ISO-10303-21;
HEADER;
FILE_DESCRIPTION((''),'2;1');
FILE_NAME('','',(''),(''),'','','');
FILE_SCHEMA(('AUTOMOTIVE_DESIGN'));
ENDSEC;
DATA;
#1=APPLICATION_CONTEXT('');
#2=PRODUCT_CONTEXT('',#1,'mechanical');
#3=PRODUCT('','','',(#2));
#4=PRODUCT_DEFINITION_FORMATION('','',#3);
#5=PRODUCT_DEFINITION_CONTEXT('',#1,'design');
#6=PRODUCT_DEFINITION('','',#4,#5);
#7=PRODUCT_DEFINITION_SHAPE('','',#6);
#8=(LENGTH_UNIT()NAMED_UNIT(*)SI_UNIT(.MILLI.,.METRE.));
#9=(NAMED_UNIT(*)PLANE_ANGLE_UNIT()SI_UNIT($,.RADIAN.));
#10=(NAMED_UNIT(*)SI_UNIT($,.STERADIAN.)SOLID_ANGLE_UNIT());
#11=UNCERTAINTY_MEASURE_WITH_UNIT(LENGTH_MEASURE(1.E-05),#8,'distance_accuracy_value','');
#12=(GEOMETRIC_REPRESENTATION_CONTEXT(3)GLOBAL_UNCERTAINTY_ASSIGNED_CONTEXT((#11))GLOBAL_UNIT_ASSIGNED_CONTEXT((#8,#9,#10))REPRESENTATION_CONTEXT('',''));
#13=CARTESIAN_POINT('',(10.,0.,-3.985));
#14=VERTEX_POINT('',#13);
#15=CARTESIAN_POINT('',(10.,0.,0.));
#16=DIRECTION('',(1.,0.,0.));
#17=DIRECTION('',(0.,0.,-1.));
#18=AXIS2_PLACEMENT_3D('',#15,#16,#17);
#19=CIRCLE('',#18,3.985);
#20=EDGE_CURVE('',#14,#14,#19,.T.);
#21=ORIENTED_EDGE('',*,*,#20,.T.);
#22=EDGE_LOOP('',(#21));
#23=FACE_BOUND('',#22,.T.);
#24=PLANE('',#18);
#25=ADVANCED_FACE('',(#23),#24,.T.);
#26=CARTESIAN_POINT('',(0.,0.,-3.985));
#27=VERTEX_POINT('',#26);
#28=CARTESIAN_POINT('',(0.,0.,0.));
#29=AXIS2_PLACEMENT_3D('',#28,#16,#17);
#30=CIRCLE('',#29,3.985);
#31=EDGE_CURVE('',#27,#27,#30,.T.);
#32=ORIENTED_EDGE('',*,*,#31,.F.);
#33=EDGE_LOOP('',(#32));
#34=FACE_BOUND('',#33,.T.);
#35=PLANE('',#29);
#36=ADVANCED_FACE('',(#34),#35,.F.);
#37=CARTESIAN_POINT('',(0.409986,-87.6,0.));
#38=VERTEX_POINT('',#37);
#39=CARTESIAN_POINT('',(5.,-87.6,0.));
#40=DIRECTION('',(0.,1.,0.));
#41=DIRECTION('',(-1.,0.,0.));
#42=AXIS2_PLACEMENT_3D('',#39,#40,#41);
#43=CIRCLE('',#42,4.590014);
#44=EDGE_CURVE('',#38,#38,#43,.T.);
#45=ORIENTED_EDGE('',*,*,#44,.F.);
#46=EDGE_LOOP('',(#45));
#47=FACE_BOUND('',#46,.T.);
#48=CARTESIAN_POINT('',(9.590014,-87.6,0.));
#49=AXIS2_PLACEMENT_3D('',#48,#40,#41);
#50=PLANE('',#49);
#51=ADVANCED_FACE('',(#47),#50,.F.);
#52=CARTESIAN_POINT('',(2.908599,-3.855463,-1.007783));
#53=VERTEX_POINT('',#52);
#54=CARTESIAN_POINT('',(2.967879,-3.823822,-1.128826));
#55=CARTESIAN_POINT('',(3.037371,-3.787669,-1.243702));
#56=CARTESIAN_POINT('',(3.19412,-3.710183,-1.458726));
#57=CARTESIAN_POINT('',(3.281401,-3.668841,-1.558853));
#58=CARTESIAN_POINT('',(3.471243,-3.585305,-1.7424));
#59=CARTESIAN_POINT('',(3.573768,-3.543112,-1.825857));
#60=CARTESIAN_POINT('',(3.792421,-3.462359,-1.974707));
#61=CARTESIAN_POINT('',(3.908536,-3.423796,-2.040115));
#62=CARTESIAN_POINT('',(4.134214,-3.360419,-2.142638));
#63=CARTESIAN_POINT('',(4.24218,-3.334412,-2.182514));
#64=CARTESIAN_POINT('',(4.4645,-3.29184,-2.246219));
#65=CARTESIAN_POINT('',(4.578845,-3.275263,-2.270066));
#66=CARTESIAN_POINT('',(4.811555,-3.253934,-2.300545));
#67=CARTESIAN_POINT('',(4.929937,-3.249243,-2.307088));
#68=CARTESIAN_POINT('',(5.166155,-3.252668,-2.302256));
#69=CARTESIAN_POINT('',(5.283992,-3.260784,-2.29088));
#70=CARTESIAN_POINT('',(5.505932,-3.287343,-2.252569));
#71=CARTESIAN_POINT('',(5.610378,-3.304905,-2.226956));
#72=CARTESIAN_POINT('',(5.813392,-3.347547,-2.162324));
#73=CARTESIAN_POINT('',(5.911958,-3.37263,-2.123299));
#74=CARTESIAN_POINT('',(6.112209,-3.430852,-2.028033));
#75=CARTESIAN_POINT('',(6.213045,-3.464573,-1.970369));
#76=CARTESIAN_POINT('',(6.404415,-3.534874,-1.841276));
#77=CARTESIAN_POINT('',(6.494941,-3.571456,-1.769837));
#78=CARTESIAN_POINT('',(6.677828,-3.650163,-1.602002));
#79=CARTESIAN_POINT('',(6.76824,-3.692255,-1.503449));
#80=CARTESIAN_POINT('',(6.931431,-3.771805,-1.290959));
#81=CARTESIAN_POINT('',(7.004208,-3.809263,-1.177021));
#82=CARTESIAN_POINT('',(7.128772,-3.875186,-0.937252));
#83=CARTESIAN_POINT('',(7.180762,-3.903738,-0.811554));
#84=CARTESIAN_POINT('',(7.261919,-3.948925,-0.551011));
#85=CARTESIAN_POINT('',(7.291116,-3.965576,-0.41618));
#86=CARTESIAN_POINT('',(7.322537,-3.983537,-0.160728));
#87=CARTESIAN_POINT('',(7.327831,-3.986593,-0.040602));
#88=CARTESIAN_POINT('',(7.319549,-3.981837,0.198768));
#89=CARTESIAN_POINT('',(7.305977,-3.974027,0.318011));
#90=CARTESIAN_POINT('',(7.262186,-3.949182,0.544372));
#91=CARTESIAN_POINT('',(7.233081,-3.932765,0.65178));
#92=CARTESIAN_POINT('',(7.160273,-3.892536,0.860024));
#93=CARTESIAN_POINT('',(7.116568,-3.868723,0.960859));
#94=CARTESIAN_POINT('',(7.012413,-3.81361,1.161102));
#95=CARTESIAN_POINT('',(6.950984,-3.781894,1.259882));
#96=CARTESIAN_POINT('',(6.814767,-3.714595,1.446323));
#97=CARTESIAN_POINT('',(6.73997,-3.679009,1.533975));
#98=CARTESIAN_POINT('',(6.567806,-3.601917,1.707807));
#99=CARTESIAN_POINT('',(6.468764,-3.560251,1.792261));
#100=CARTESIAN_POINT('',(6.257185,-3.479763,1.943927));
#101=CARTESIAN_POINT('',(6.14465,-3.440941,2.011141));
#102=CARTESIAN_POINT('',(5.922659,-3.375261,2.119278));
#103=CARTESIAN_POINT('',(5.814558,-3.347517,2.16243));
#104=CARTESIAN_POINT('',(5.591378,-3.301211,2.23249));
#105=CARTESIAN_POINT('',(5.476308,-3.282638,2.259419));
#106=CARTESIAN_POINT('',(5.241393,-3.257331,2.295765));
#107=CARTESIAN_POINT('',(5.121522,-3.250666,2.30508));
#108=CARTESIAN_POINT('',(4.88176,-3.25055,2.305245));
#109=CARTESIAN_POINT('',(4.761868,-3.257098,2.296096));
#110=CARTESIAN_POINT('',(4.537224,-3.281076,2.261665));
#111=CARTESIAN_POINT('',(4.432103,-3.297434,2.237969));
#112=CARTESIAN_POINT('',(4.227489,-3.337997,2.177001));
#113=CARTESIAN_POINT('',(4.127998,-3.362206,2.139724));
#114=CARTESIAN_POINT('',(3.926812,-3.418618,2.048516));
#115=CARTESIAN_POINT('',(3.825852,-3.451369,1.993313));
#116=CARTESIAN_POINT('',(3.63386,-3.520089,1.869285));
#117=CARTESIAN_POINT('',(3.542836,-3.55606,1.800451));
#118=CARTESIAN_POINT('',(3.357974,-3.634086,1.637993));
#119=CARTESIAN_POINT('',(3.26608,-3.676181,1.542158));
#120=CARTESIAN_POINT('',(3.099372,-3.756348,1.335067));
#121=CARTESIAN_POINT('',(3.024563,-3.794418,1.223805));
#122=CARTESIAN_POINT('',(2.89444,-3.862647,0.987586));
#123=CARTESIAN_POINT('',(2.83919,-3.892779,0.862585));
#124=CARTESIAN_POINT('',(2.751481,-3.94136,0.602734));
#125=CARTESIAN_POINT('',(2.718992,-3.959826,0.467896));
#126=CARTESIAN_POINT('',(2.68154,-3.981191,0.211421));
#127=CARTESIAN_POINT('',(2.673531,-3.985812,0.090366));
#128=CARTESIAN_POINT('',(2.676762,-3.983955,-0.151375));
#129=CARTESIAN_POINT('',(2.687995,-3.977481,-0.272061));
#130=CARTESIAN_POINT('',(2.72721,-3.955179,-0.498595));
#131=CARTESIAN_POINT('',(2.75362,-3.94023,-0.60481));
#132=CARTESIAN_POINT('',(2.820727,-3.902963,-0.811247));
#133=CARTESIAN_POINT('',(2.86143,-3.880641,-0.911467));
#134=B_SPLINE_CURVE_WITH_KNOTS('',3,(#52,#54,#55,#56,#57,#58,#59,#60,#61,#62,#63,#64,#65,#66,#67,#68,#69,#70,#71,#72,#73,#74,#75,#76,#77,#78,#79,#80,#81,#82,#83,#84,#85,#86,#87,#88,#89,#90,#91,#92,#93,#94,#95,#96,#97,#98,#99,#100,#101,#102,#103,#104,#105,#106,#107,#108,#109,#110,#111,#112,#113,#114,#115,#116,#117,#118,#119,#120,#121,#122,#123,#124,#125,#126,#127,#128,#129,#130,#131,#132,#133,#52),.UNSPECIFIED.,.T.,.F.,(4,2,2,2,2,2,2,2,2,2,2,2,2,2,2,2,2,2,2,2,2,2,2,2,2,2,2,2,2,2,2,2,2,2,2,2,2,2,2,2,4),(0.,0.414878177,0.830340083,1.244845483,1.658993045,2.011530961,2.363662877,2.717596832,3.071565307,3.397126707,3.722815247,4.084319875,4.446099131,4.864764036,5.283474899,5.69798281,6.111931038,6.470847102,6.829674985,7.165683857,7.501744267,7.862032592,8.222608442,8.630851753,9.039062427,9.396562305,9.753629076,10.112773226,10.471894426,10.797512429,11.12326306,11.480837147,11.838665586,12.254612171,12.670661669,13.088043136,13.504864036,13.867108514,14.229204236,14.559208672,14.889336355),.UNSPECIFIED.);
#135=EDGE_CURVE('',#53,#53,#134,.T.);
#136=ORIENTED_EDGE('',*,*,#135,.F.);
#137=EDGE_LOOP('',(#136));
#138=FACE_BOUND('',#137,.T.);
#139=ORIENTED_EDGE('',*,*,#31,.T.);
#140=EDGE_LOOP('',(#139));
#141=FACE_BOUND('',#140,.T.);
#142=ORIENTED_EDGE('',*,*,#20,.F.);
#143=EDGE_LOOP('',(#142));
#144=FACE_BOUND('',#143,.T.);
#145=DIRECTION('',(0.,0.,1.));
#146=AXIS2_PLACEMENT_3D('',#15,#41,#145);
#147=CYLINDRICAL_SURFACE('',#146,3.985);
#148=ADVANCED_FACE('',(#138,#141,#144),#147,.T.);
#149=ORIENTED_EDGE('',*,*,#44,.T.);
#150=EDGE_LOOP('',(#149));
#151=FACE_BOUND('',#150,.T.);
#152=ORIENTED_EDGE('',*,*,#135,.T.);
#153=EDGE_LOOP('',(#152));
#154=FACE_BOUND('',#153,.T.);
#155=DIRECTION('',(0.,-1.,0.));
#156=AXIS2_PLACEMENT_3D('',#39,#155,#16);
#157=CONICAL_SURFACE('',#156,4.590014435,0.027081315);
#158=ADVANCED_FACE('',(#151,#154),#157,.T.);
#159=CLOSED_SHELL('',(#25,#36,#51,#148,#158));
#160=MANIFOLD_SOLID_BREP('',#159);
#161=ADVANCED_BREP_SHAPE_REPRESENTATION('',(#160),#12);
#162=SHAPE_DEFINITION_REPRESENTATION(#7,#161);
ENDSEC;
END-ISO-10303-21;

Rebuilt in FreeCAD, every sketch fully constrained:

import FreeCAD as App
import Part
import Sketcher

V = App.Vector
Q = App.Units.Quantity

doc = App.newDocument("Part")
body = doc.addObject("PartDesign::Body", "Body")

# Sketch on YZ plane
sketch1 = body.newObject("Sketcher::SketchObject", "Sketch")
sketch1.AttachmentSupport = (doc.getObject("YZ_Plane"), [""])
sketch1.MapMode = "FlatFace"
sketch1.addGeometry(Part.Circle(V(0, 0, 0), V(0, 0, 1), 4), False)
sketch1.addConstraint([
    Sketcher.Constraint("Coincident", 0, 3, -1, 1),
    Sketcher.Constraint("Diameter", 0, Q("7.97 mm")),
])
pad1 = body.newObject("PartDesign::Pad", "Pad")
pad1.Profile = sketch1
pad1.Length = 10

# Sketch on XY plane
sketch2 = body.newObject("Sketcher::SketchObject", "Sketch001")
sketch2.AttachmentSupport = (doc.getObject("XY_Plane"), [""])
sketch2.MapMode = "FlatFace"
sketch2.addGeometry([
    Part.LineSegment(V(7.2, 0, 0), V(5, 0, 0)),
    Part.LineSegment(V(5, 0, 0), V(5, -87.6, 0)),
    Part.LineSegment(V(5, -87.6, 0), V(9.6, -87.6, 0)),
    Part.LineSegment(V(9.6, -87.6, 0), V(7.2, 0, 0)),
], False)
sketch2.addGeometry(Part.LineSegment(V(5, 0, 0), V(5, -87.6, 0)), True)  # axis
sketch2.addConstraint([
    Sketcher.Constraint("Coincident", 0, 2, 1, 1),
    Sketcher.Constraint("Coincident", 1, 2, 2, 1),
    Sketcher.Constraint("Coincident", 2, 2, 3, 1),
    Sketcher.Constraint("Coincident", 3, 2, 0, 1),
    Sketcher.Constraint("Horizontal", 0),
    Sketcher.Constraint("Vertical", 1),
    Sketcher.Constraint("Horizontal", 2),
    Sketcher.Constraint("Vertical", 4),
    Sketcher.Constraint("Coincident", 4, 1, 0, 2),
    Sketcher.Constraint("PointOnObject", 0, 2, -1),
    Sketcher.Constraint("Horizontal", 2, 2, 4, 2),
    Sketcher.Constraint("DistanceY", 1, 2, 1, 1, Q("87.6 mm")),
    Sketcher.Constraint("DistanceX", -1, 1, 0, 2, Q("5 mm")),
    Sketcher.Constraint("DistanceX", 0, 2, 0, 1, Q("2.217111 mm")),
    Sketcher.Constraint("DistanceX", 2, 1, 2, 2, Q("4.590014 mm")),
])
revolution = body.newObject("PartDesign::Revolution", "Revolution")
revolution.Profile = sketch2
revolution.ReferenceAxis = (sketch2, ["Axis0"])
revolution.Angle = 360

doc.recompute()
